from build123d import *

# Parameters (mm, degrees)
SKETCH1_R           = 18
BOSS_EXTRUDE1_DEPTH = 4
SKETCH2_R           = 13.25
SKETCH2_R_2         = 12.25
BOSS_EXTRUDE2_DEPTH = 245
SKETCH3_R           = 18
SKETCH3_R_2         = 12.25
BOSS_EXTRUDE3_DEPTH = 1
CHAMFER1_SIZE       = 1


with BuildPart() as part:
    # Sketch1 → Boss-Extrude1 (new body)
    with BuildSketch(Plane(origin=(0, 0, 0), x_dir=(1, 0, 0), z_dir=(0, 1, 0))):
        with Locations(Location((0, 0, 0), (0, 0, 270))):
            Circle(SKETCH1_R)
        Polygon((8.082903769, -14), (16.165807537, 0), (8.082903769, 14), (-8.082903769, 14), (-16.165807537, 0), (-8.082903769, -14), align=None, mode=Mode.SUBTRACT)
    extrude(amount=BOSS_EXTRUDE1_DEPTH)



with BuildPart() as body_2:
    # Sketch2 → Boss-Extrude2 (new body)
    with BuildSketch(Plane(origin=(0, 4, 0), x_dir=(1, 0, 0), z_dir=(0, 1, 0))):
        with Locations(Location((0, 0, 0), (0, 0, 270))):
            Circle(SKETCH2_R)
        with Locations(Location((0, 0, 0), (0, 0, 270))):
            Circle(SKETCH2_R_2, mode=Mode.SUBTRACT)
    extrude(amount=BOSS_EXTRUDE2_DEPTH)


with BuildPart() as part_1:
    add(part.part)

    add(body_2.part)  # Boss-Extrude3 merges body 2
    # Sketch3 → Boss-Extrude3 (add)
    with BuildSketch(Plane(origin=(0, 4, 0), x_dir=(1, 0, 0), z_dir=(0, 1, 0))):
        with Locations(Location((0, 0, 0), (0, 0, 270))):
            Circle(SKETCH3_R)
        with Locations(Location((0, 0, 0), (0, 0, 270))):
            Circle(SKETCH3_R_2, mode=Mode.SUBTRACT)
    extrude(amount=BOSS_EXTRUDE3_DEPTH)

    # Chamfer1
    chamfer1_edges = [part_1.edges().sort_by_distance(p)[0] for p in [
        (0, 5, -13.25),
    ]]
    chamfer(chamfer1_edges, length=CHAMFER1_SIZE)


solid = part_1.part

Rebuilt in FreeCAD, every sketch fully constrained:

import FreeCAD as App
import Part
import Sketcher

V = App.Vector
Q = App.Units.Quantity


def edges_at(feature, points):
    """Names of the edges that pass closest to the given points."""
    edges = feature.Shape.Edges
    near = lambda p: min(range(len(edges)), key=lambda i: edges[i].distToShape(Part.Vertex(*p))[0])
    return sorted({f"Edge{near(p) + 1}" for p in points})


def add_polygon(sketch, points):
    """Adds a closed chain of lines whose ends are joined by coincident constraints."""
    first, n = sketch.GeometryCount, len(points)
    for a, b in zip(points, points[1:] + points[:1]):
        sketch.addGeometry(Part.LineSegment(App.Vector(*a, 0), App.Vector(*b, 0)), False)
    for i in range(n):
        sketch.addConstraint(Sketcher.Constraint("Coincident", first + i, 2, first + (i + 1) % n, 1))

doc = App.newDocument("Part")
params = doc.addObject("Spreadsheet::Sheet", "Params")
for row, (alias, value) in enumerate([
    ("sketch1_diameter", "36 mm"),
    ("pad1_length", "4 mm"),
    ("sketch2_diameter", "26.5 mm"),
    ("sketch2_diameter2", "24.5 mm"),
    ("pad2_length", "245 mm"),
    ("sketch3_diameter", "36 mm"),
    ("sketch3_diameter2", "24.5 mm"),
    ("pad3_length", "1 mm"),
    ("chamfer_size", "1 mm"),
], start=1):
    params.set(f"A{row}", alias)
    params.set(f"B{row}", "=" + value)
    params.setAlias(f"B{row}", alias)

body = doc.addObject("PartDesign::Body", "Body")

# Sketch on XZ plane
sketch1 = body.newObject("Sketcher::SketchObject", "Sketch")
sketch1.AttachmentSupport = (doc.getObject("XZ_Plane"), [""])
sketch1.MapMode = "FlatFace"
sketch1.addGeometry(Part.Circle(V(0, 0, 0), V(0, 0, 1), 18), False)  # 0
add_polygon(sketch1, [(16, 0), (8, 14), (-8, 14), (-16, 0), (-8, -14), (8, -14)])  # lines 1-6
sketch1.addConstraint(Sketcher.Constraint("Horizontal", 2))
sketch1.addConstraint(Sketcher.Constraint("Horizontal", 5))
sketch1.addConstraint(Sketcher.Constraint("Coincident", 0, 3, -1, 1))
sketch1.addConstraint(Sketcher.Constraint("Symmetric", 1, 2, 4, 2, -1, 1))
sketch1.addConstraint(Sketcher.Constraint("Symmetric", 3, 2, 6, 2, -1, 1))
sketch1.addConstraint(Sketcher.Constraint("PointOnObject", 3, 2, -1))
sketch1.addConstraint(Sketcher.Constraint("Parallel", 3, 6))
sketch1.addConstraint(Sketcher.Constraint("Vertical", 2, 2, 4, 2))
sketch1.addConstraint(Sketcher.Constraint("Diameter", 0, Q("36 mm")))
sketch1.addConstraint(Sketcher.Constraint("Angle", 1, Q("120 deg")))
sketch1.addConstraint(Sketcher.Constraint("DistanceY", -1, 1, 1, 2, Q("14 mm")))
sketch1.addConstraint(Sketcher.Constraint("DistanceX", 2, 2, 2, 1, Q("16.165808 mm")))
sketch1.setExpression("Constraints[14]", "Params.sketch1_diameter")
pad1 = body.newObject("PartDesign::Pad", "Pad")
pad1.Profile = sketch1
pad1.setExpression("Length", "Params.pad1_length")
pad1.Reversed = True
body2 = doc.addObject("PartDesign::Body", "Body001")

# Sketch on XZ plane
sketch2 = body2.newObject("Sketcher::SketchObject", "Sketch001")
sketch2.AttachmentSupport = (doc.getObject("XZ_Plane001"), [""])
sketch2.MapMode = "FlatFace"
sketch2.AttachmentOffset = App.Placement(V(0, 0, -4), App.Rotation())
sketch2.addGeometry(Part.Circle(V(0, 0, 0), V(0, 0, 1), 13), False)
sketch2.addGeometry(Part.Circle(V(0, 0, 0), V(0, 0, 1), 12), False)
sketch2.addConstraint(Sketcher.Constraint("Coincident", 0, 3, -1, 1))
sketch2.addConstraint(Sketcher.Constraint("Coincident", 1, 3, -1, 1))
sketch2.addConstraint(Sketcher.Constraint("Diameter", 0, Q("26.5 mm")))
sketch2.addConstraint(Sketcher.Constraint("Diameter", 1, Q("24.5 mm")))
sketch2.setExpression("Constraints[2]", "Params.sketch2_diameter")
sketch2.setExpression("Constraints[3]", "Params.sketch2_diameter2")
pad2 = body2.newObject("PartDesign::Pad", "Pad001")
pad2.Profile = sketch2
pad2.setExpression("Length", "Params.pad2_length")
pad2.Reversed = True
body.AllowCompound = True
doc.recompute()

boolean = body.newObject("PartDesign::Boolean", "Boolean")
boolean.Type = "Fuse"
boolean.addObjects([body2])

# Sketch on XZ plane
sketch3 = body.newObject("Sketcher::SketchObject", "Sketch002")
sketch3.AttachmentSupport = (doc.getObject("XZ_Plane"), [""])
sketch3.MapMode = "FlatFace"
sketch3.AttachmentOffset = App.Placement(V(0, 0, -4), App.Rotation())
sketch3.addGeometry(Part.Circle(V(0, 0, 0), V(0, 0, 1), 18), False)
sketch3.addGeometry(Part.Circle(V(0, 0, 0), V(0, 0, 1), 12), False)
sketch3.addConstraint(Sketcher.Constraint("Coincident", 0, 3, -1, 1))
sketch3.addConstraint(Sketcher.Constraint("Coincident", 1, 3, -1, 1))
sketch3.addConstraint(Sketcher.Constraint("Diameter", 0, Q("36 mm")))
sketch3.addConstraint(Sketcher.Constraint("Diameter", 1, Q("24.5 mm")))
sketch3.setExpression("Constraints[2]", "Params.sketch3_diameter")
sketch3.setExpression("Constraints[3]", "Params.sketch3_diameter2")
pad3 = body.newObject("PartDesign::Pad", "Pad002")
pad3.Profile = sketch3
pad3.setExpression("Length", "Params.pad3_length")
pad3.Reversed = True
doc.recompute()

chamfer = body.newObject("PartDesign::Chamfer", "Chamfer")
chamfer.Base = (pad3, edges_at(pad3, [(0, 5, -13.25)]))
chamfer.setExpression("Size", "Params.chamfer_size")

doc.recompute()
